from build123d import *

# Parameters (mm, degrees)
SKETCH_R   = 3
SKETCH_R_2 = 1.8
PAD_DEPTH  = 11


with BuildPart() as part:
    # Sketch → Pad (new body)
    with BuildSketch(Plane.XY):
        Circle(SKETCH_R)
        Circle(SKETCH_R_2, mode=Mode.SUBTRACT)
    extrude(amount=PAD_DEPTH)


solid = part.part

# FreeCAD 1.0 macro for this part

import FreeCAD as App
import Part
import Sketcher

doc = App.newDocument("Part")
body = doc.addObject("PartDesign::Body", "Body")

sketch1 = body.newObject("Sketcher::SketchObject", "Sketch")
sketch1.AttachmentSupport = (doc.getObject("XY_Plane"), [""])
sketch1.MapMode = "FlatFace"
sketch1.addGeometry(Part.Circle(App.Vector(0, 0, 0), App.Vector(0, 0, 1), 3), False)
sketch1.addGeometry(Part.Circle(App.Vector(0, 0, 0), App.Vector(0, 0, 1), 1.8), False)
sketch1.addConstraint(Sketcher.Constraint("Coincident", 0, 3, -1, 1))
sketch1.addConstraint(Sketcher.Constraint("Coincident", 1, 3, -1, 1))
sketch1.addConstraint(Sketcher.Constraint("Diameter", 0, 6.0))
sketch1.addConstraint(Sketcher.Constraint("Diameter", 1, 3.6))
pad1 = body.newObject("PartDesign::Pad", "Pad")
pad1.Profile = sketch1
pad1.Length = 11

doc.recompute()
